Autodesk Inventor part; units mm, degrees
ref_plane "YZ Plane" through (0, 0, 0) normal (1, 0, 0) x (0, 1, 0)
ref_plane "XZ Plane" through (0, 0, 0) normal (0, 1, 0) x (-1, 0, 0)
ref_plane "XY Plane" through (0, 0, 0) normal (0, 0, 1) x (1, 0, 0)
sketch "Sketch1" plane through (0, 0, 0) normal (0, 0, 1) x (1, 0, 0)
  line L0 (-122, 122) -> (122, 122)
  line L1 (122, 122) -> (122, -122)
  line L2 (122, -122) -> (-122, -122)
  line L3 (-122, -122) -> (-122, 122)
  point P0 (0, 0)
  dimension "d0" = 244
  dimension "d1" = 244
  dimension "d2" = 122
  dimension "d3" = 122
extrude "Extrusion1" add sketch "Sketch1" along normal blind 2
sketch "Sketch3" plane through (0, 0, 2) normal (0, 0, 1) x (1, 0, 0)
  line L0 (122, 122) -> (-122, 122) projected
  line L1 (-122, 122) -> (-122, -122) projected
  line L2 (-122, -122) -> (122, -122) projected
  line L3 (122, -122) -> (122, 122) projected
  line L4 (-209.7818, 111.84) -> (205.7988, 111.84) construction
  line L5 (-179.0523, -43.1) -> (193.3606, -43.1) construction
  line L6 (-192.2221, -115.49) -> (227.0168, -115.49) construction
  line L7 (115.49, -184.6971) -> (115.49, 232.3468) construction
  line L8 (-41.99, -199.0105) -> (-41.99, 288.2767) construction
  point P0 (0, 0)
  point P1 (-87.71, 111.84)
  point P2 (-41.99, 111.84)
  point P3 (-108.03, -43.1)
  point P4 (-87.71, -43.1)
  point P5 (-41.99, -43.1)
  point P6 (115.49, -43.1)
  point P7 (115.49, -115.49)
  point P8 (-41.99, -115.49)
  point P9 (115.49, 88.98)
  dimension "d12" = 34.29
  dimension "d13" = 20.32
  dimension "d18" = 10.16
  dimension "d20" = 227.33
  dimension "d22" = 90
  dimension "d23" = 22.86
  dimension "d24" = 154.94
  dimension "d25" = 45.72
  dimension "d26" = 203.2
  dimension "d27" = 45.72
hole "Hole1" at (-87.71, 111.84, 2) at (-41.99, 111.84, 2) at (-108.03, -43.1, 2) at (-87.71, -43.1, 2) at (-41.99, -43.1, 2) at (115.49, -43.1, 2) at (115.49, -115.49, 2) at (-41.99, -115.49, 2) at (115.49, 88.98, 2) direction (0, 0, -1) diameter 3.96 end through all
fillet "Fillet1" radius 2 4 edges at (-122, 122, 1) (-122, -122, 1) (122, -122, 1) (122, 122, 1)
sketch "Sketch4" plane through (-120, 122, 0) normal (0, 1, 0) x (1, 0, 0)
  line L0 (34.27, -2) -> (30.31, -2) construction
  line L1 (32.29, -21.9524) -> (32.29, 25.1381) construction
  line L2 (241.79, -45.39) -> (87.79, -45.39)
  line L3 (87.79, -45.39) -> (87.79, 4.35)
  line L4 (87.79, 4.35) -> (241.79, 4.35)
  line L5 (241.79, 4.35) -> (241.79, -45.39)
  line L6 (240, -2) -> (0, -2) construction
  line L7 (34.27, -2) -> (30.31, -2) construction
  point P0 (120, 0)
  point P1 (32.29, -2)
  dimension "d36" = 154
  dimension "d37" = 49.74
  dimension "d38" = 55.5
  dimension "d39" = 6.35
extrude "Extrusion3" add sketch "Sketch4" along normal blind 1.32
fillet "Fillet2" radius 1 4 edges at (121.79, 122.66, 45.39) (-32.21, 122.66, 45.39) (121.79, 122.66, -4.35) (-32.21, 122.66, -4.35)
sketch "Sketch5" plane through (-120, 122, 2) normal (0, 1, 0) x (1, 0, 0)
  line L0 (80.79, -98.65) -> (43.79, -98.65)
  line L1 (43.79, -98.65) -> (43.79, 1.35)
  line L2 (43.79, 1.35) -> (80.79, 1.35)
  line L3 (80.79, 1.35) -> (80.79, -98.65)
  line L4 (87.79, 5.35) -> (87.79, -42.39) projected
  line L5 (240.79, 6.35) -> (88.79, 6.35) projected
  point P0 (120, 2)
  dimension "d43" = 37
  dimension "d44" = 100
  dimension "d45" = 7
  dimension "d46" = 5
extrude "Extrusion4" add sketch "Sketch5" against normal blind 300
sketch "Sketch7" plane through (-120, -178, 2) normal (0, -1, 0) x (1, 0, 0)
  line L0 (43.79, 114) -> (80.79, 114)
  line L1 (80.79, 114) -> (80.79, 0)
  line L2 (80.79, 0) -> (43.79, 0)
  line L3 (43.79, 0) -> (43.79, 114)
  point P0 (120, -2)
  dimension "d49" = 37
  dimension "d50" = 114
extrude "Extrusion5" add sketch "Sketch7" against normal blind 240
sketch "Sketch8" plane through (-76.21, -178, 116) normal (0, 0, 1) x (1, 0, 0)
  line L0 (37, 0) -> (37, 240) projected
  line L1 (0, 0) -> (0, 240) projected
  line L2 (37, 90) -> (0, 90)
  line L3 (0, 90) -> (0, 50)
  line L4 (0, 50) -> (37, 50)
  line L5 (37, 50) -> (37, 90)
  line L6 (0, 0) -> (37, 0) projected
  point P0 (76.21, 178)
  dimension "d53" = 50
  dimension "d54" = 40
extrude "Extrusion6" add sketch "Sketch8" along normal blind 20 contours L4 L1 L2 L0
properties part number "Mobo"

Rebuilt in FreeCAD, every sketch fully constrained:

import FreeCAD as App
import Part
import Sketcher
from FreeCAD import Vector
Q = App.Units.Quantity


def edges_at(feature, points):
    """Names of the edges that pass closest to the given points."""
    edges = feature.Shape.Edges
    near = lambda p: min(range(len(edges)), key=lambda i: edges[i].distToShape(Part.Vertex(*p))[0])
    return sorted({f"Edge{near(p) + 1}" for p in points})

doc = App.newDocument("Part")
body = doc.addObject("PartDesign::Body", "Body")

# Sketch on XY plane
sketch1 = body.newObject("Sketcher::SketchObject", "Sketch")
sketch1.AttachmentSupport = (doc.getObject("XY_Plane"), [""])
sketch1.MapMode = "FlatFace"
sketch1.addGeometry(Part.LineSegment(Vector(122, 122, 0), Vector(-122, 122, 0)), False)
sketch1.addGeometry(Part.LineSegment(Vector(-122, 122, 0), Vector(-122, -122, 0)), False)
sketch1.addGeometry(Part.LineSegment(Vector(-122, -122, 0), Vector(122, -122, 0)), False)
sketch1.addGeometry(Part.LineSegment(Vector(122, -122, 0), Vector(122, 122, 0)), False)
sketch1.addConstraint(Sketcher.Constraint("Coincident", 0, 2, 1, 1))
sketch1.addConstraint(Sketcher.Constraint("Coincident", 1, 2, 2, 1))
sketch1.addConstraint(Sketcher.Constraint("Coincident", 2, 2, 3, 1))
sketch1.addConstraint(Sketcher.Constraint("Coincident", 3, 2, 0, 1))
sketch1.addConstraint(Sketcher.Constraint("Horizontal", 0))
sketch1.addConstraint(Sketcher.Constraint("Vertical", 1))
sketch1.addConstraint(Sketcher.Constraint("Horizontal", 2))
sketch1.addConstraint(Sketcher.Constraint("Vertical", 3))
sketch1.addConstraint(Sketcher.Constraint("Symmetric", 0, 2, 2, 2, -1, 1))
sketch1.addConstraint(Sketcher.Constraint("Equal", 2, 1))
sketch1.addConstraint(Sketcher.Constraint("DistanceX", 0, 2, 0, 1, Q("244 mm")))
pad1 = body.newObject("PartDesign::Pad", "Pad")
pad1.Profile = sketch1
pad1.Length = 2

# Sketch on XY plane
sketch2 = body.newObject("Sketcher::SketchObject", "Sketch001")
sketch2.AttachmentSupport = (doc.getObject("XY_Plane"), [""])
sketch2.MapMode = "FlatFace"
sketch2.AttachmentOffset = App.Placement(Vector(0, 0, 2), App.Rotation())
sketch2.addGeometry(Part.Circle(Vector(-87.7, 111.8, 0), Vector(0, 0, 1), 2), False)
sketch2.addGeometry(Part.Circle(Vector(-42, 111.8, 0), Vector(0, 0, 1), 2), False)
sketch2.addGeometry(Part.Circle(Vector(-108, -43.1, 0), Vector(0, 0, 1), 2), False)
sketch2.addGeometry(Part.Circle(Vector(-87.7, -43.1, 0), Vector(0, 0, 1), 2), False)
sketch2.addGeometry(Part.Circle(Vector(-42, -43.1, 0), Vector(0, 0, 1), 2), False)
sketch2.addGeometry(Part.Circle(Vector(115.5, -43.1, 0), Vector(0, 0, 1), 2), False)
sketch2.addGeometry(Part.Circle(Vector(115.5, -115.5, 0), Vector(0, 0, 1), 2), False)
sketch2.addGeometry(Part.Circle(Vector(-42, -115.5, 0), Vector(0, 0, 1), 2), False)
sketch2.addGeometry(Part.Circle(Vector(115.5, 89, 0), Vector(0, 0, 1), 2), False)
sketch2.addConstraint(Sketcher.Constraint("Equal", 0, 1))
sketch2.addConstraint(Sketcher.Constraint("Equal", 1, 2))
sketch2.addConstraint(Sketcher.Constraint("Equal", 2, 3))
sketch2.addConstraint(Sketcher.Constraint("Equal", 3, 4))
sketch2.addConstraint(Sketcher.Constraint("Equal", 4, 5))
sketch2.addConstraint(Sketcher.Constraint("Equal", 5, 6))
sketch2.addConstraint(Sketcher.Constraint("Equal", 6, 7))
sketch2.addConstraint(Sketcher.Constraint("Equal", 7, 8))
sketch2.addConstraint(Sketcher.Constraint("Horizontal", 0, 3, 1, 3))
sketch2.addConstraint(Sketcher.Constraint("Horizontal", 2, 3, 3, 3))
sketch2.addConstraint(Sketcher.Constraint("Horizontal", 3, 3, 4, 3))
sketch2.addConstraint(Sketcher.Constraint("Horizontal", 4, 3, 5, 3))
sketch2.addConstraint(Sketcher.Constraint("Horizontal", 6, 3, 7, 3))
sketch2.addConstraint(Sketcher.Constraint("Vertical", 0, 3, 3, 3))
sketch2.addConstraint(Sketcher.Constraint("Vertical", 1, 3, 4, 3))
sketch2.addConstraint(Sketcher.Constraint("Vertical", 5, 3, 6, 3))
sketch2.addConstraint(Sketcher.Constraint("Vertical", 4, 3, 7, 3))
sketch2.addConstraint(Sketcher.Constraint("Vertical", 6, 3, 8, 3))
sketch2.addConstraint(Sketcher.Constraint("Diameter", 0, Q("3.96 mm")))
sketch2.addConstraint(Sketcher.Constraint("DistanceY", 2, 3, -1, 1, Q("43.1 mm")))
sketch2.addConstraint(Sketcher.Constraint("DistanceX", 3, 3, 5, 3, Q("203.2 mm")))
sketch2.addConstraint(Sketcher.Constraint("DistanceX", 0, 3, -1, 1, Q("87.71 mm")))
sketch2.addConstraint(Sketcher.Constraint("DistanceY", -1, 1, 0, 3, Q("111.84 mm")))
sketch2.addConstraint(Sketcher.Constraint("DistanceX", 1, 3, -1, 1, Q("41.99 mm")))
sketch2.addConstraint(Sketcher.Constraint("DistanceX", 2, 3, -1, 1, Q("108.03 mm")))
sketch2.addConstraint(Sketcher.Constraint("DistanceY", 6, 3, -1, 1, Q("115.49 mm")))
sketch2.addConstraint(Sketcher.Constraint("DistanceY", -1, 1, 8, 3, Q("88.98 mm")))
doc.recompute()
hole = body.newObject("PartDesign::Hole", "Hole")
hole.Profile = sketch2
hole.ThreadType = "None"
hole.Diameter = 3.96
hole.DepthType = "ThroughAll"
doc.recompute()

fillet = body.newObject("PartDesign::Fillet", "Fillet")
fillet.Base = (hole, edges_at(hole, [
    (-122, 122, 1),
    (-122, -122, 1),
    (122, -122, 1),
    (122, 122, 1),
]))
fillet.Radius = 2

# Sketch on XZ plane
sketch3 = body.newObject("Sketcher::SketchObject", "Sketch002")
sketch3.AttachmentSupport = (doc.getObject("XZ_Plane"), [""])
sketch3.MapMode = "FlatFace"
sketch3.AttachmentOffset = App.Placement(Vector(0, 0, -122), App.Rotation())
sketch3.addGeometry(Part.LineSegment(Vector(-32, 45, 0), Vector(122, 45, 0)), False)
sketch3.addGeometry(Part.LineSegment(Vector(122, 45, 0), Vector(122, -4, 0)), False)
sketch3.addGeometry(Part.LineSegment(Vector(122, -4, 0), Vector(-32, -4, 0)), False)
sketch3.addGeometry(Part.LineSegment(Vector(-32, -4, 0), Vector(-32, 45, 0)), False)
sketch3.addConstraint(Sketcher.Constraint("Coincident", 0, 2, 1, 1))
sketch3.addConstraint(Sketcher.Constraint("Coincident", 1, 2, 2, 1))
sketch3.addConstraint(Sketcher.Constraint("Coincident", 2, 2, 3, 1))
sketch3.addConstraint(Sketcher.Constraint("Coincident", 3, 2, 0, 1))
sketch3.addConstraint(Sketcher.Constraint("Horizontal", 0))
sketch3.addConstraint(Sketcher.Constraint("Vertical", 1))
sketch3.addConstraint(Sketcher.Constraint("Horizontal", 2))
sketch3.addConstraint(Sketcher.Constraint("Vertical", 3))
sketch3.addConstraint(Sketcher.Constraint("DistanceX", 0, 1, 0, 2, Q("154 mm")))
sketch3.addConstraint(Sketcher.Constraint("DistanceY", 1, 2, 1, 1, Q("49.74 mm")))
sketch3.addConstraint(Sketcher.Constraint("DistanceX", -1, 1, 0, 2, Q("121.79 mm")))
sketch3.addConstraint(Sketcher.Constraint("DistanceY", -1, 1, 0, 2, Q("45.39 mm")))
pad2 = body.newObject("PartDesign::Pad", "Pad001")
pad2.Profile = sketch3
pad2.Length = 1.32
pad2.Reversed = True
doc.recompute()

fillet2 = body.newObject("PartDesign::Fillet", "Fillet001")
fillet2.Base = (pad2, edges_at(pad2, [
    (121.79, 122.66, 45.39),
    (-32.21, 122.66, 45.39),
    (121.79, 122.66, -4.35),
    (-32.21, 122.66, -4.35),
]))
fillet2.Radius = 1

# Sketch on XZ plane
sketch4 = body.newObject("Sketcher::SketchObject", "Sketch003")
sketch4.AttachmentSupport = (doc.getObject("XZ_Plane"), [""])
sketch4.MapMode = "FlatFace"
sketch4.AttachmentOffset = App.Placement(Vector(0, 0, -122), App.Rotation())
sketch4.addGeometry(Part.LineSegment(Vector(-76, 101, 0), Vector(-39, 101, 0)), False)
sketch4.addGeometry(Part.LineSegment(Vector(-39, 101, 0), Vector(-39, 1, 0)), False)
sketch4.addGeometry(Part.LineSegment(Vector(-39, 1, 0), Vector(-76, 1, 0)), False)
sketch4.addGeometry(Part.LineSegment(Vector(-76, 1, 0), Vector(-76, 101, 0)), False)
sketch4.addConstraint(Sketcher.Constraint("Coincident", 0, 2, 1, 1))
sketch4.addConstraint(Sketcher.Constraint("Coincident", 1, 2, 2, 1))
sketch4.addConstraint(Sketcher.Constraint("Coincident", 2, 2, 3, 1))
sketch4.addConstraint(Sketcher.Constraint("Coincident", 3, 2, 0, 1))
sketch4.addConstraint(Sketcher.Constraint("Horizontal", 0))
sketch4.addConstraint(Sketcher.Constraint("Vertical", 1))
sketch4.addConstraint(Sketcher.Constraint("Horizontal", 2))
sketch4.addConstraint(Sketcher.Constraint("Vertical", 3))
sketch4.addConstraint(Sketcher.Constraint("DistanceX", 0, 1, 0, 2, Q("37 mm")))
sketch4.addConstraint(Sketcher.Constraint("DistanceY", 1, 2, 1, 1, Q("100 mm")))
sketch4.addConstraint(Sketcher.Constraint("DistanceX", 0, 2, -1, 1, Q("39.21 mm")))
sketch4.addConstraint(Sketcher.Constraint("DistanceY", -1, 1, 0, 2, Q("100.65 mm")))
pad3 = body.newObject("PartDesign::Pad", "Pad002")
pad3.Profile = sketch4
pad3.Length = 300

# Sketch on XZ plane
sketch5 = body.newObject("Sketcher::SketchObject", "Sketch004")
sketch5.AttachmentSupport = (doc.getObject("XZ_Plane"), [""])
sketch5.MapMode = "FlatFace"
sketch5.AttachmentOffset = App.Placement(Vector(0, 0, 178), App.Rotation())
sketch5.addGeometry(Part.LineSegment(Vector(-39, 116, 0), Vector(-76, 116, 0)), False)
sketch5.addGeometry(Part.LineSegment(Vector(-76, 116, 0), Vector(-76, 2, 0)), False)
sketch5.addGeometry(Part.LineSegment(Vector(-76, 2, 0), Vector(-39, 2, 0)), False)
sketch5.addGeometry(Part.LineSegment(Vector(-39, 2, 0), Vector(-39, 116, 0)), False)
sketch5.addConstraint(Sketcher.Constraint("Coincident", 0, 2, 1, 1))
sketch5.addConstraint(Sketcher.Constraint("Coincident", 1, 2, 2, 1))
sketch5.addConstraint(Sketcher.Constraint("Coincident", 2, 2, 3, 1))
sketch5.addConstraint(Sketcher.Constraint("Coincident", 3, 2, 0, 1))
sketch5.addConstraint(Sketcher.Constraint("Horizontal", 0))
sketch5.addConstraint(Sketcher.Constraint("Vertical", 1))
sketch5.addConstraint(Sketcher.Constraint("Horizontal", 2))
sketch5.addConstraint(Sketcher.Constraint("Vertical", 3))
sketch5.addConstraint(Sketcher.Constraint("DistanceX", 0, 2, 0, 1, Q("37 mm")))
sketch5.addConstraint(Sketcher.Constraint("DistanceY", 1, 2, 1, 1, Q("114 mm")))
sketch5.addConstraint(Sketcher.Constraint("DistanceY", -1, 1, 0, 2, Q("116 mm")))
sketch5.addConstraint(Sketcher.Constraint("DistanceX", 0, 2, -1, 1, Q("76.21 mm")))
pad4 = body.newObject("PartDesign::Pad", "Pad003")
pad4.Profile = sketch5
pad4.Length = 240
pad4.Reversed = True

# Sketch on XY plane
sketch6 = body.newObject("Sketcher::SketchObject", "Sketch005")
sketch6.AttachmentSupport = (doc.getObject("XY_Plane"), [""])
sketch6.MapMode = "FlatFace"
sketch6.AttachmentOffset = App.Placement(Vector(0, 0, 116), App.Rotation())
sketch6.addGeometry(Part.LineSegment(Vector(-76, -128, 0), Vector(-39, -128, 0)), False)
sketch6.addGeometry(Part.LineSegment(Vector(-39, -128, 0), Vector(-39, -88, 0)), False)
sketch6.addGeometry(Part.LineSegment(Vector(-39, -88, 0), Vector(-76, -88, 0)), False)
sketch6.addGeometry(Part.LineSegment(Vector(-76, -88, 0), Vector(-76, -128, 0)), False)
sketch6.addConstraint(Sketcher.Constraint("Coincident", 0, 2, 1, 1))
sketch6.addConstraint(Sketcher.Constraint("Coincident", 1, 2, 2, 1))
sketch6.addConstraint(Sketcher.Constraint("Coincident", 2, 2, 3, 1))
sketch6.addConstraint(Sketcher.Constraint("Coincident", 3, 2, 0, 1))
sketch6.addConstraint(Sketcher.Constraint("Horizontal", 0))
sketch6.addConstraint(Sketcher.Constraint("Vertical", 1))
sketch6.addConstraint(Sketcher.Constraint("Horizontal", 2))
sketch6.addConstraint(Sketcher.Constraint("Vertical", 3))
sketch6.addConstraint(Sketcher.Constraint("DistanceY", 1, 1, 1, 2, Q("40 mm")))
sketch6.addConstraint(Sketcher.Constraint("DistanceX", 0, 1, 0, 2, Q("37 mm")))
sketch6.addConstraint(Sketcher.Constraint("DistanceY", 0, 2, -1, 1, Q("128 mm")))
sketch6.addConstraint(Sketcher.Constraint("DistanceX", 0, 2, -1, 1, Q("39.21 mm")))
pad5 = body.newObject("PartDesign::Pad", "Pad004")
pad5.Profile = sketch6
pad5.Length = 20

doc.recompute()
